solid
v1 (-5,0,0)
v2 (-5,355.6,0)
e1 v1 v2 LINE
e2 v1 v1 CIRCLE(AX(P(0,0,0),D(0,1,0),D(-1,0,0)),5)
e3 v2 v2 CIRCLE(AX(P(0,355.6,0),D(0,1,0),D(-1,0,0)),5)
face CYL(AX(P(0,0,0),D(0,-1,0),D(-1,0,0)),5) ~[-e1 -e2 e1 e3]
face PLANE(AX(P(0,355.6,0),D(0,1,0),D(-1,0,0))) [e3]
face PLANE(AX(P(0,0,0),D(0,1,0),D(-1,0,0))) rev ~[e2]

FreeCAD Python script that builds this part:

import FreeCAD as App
import Part
import Sketcher

V = App.Vector
Q = App.Units.Quantity

doc = App.newDocument("Part")
body = doc.addObject("PartDesign::Body", "Body")

sketch1 = body.newObject("Sketcher::SketchObject", "Sketch")
sketch1.AttachmentSupport = (doc.getObject("XZ_Plane"), [""])
sketch1.MapMode = "FlatFace"
sketch1.addGeometry(Part.Circle(V(0, 0, 0), V(0, 0, 1), 5), False)
sketch1.addConstraint([
    Sketcher.Constraint("Coincident", 0, 3, -1, 1),
    Sketcher.Constraint("Diameter", 0, Q("0.3937 in")),
])
pad1 = body.newObject("PartDesign::Pad", "Pad")
pad1.Profile = sketch1
pad1.Length = Q("14 in")
pad1.Reversed = True

doc.recompute()
